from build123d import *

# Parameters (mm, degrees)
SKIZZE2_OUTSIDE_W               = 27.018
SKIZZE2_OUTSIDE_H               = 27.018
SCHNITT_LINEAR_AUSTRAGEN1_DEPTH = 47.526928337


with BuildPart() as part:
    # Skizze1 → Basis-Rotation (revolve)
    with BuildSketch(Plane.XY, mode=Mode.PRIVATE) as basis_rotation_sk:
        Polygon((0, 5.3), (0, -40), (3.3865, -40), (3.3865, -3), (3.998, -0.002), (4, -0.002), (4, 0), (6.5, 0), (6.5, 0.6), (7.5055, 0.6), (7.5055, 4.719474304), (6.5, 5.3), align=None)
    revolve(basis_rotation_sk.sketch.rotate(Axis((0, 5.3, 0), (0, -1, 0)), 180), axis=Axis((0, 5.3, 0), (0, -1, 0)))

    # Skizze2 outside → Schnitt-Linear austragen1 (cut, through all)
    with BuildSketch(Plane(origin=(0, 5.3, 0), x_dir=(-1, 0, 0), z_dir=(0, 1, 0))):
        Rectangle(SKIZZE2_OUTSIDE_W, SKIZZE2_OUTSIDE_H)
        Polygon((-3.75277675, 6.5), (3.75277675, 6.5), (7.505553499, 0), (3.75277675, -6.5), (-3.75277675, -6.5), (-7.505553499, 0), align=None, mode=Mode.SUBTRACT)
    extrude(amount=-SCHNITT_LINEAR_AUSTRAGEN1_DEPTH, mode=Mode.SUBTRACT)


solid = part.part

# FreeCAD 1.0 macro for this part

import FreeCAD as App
import Part
import Sketcher
from FreeCAD import Vector
Q = App.Units.Quantity


def add_polygon(sketch, points):
    """Adds a closed chain of lines whose ends are joined by coincident constraints."""
    first, n = sketch.GeometryCount, len(points)
    for a, b in zip(points, points[1:] + points[:1]):
        sketch.addGeometry(Part.LineSegment(App.Vector(*a, 0), App.Vector(*b, 0)), False)
    for i in range(n):
        sketch.addConstraint(Sketcher.Constraint("Coincident", first + i, 2, first + (i + 1) % n, 1))

doc = App.newDocument("Part")
params = doc.addObject("Spreadsheet::Sheet", "Params")
for row, (alias, value) in enumerate([
    ("sketch1_height", "37 mm"),
    ("sketch1_width", "2.5 mm"),
    ("sketch1_width2", "6.5 mm"),
    ("sketch1_height2", "45.3 mm"),
    ("sketch1_height3", "0.6 mm"),
    ("revolution_angle", "360 deg"),
], start=1):
    params.set(f"A{row}", alias)
    params.set(f"B{row}", "=" + value)
    params.setAlias(f"B{row}", alias)

body = doc.addObject("PartDesign::Body", "Body")

# Sketch on XY plane
sketch1 = body.newObject("Sketcher::SketchObject", "Sketch")
sketch1.AttachmentSupport = (doc.getObject("XY_Plane"), [""])
sketch1.MapMode = "FlatFace"
add_polygon(sketch1, [(0, 5.3), (0, -40), (3.3865, -40), (3.3865, -3), (3.998, -0.002), (4, -0.002), (4, 0), (6.5, 0), (6.5, 0.6), (7.5055, 0.6), (7.5055, 4.7195), (6.5, 5.3)])  # lines 0-11
sketch1.addConstraint([
    Sketcher.Constraint("Vertical", 0),
    Sketcher.Constraint("Horizontal", 1),
    Sketcher.Constraint("Vertical", 2),
    Sketcher.Constraint("Horizontal", 4),
    Sketcher.Constraint("Vertical", 5),
    Sketcher.Constraint("Horizontal", 6),
    Sketcher.Constraint("Vertical", 7),
    Sketcher.Constraint("Horizontal", 8),
    Sketcher.Constraint("Vertical", 9),
    Sketcher.Constraint("Horizontal", 11),
    Sketcher.Constraint("PointOnObject", 0, 2, -2),
    Sketcher.Constraint("PointOnObject", 5, 2, -1),
    Sketcher.Constraint("Vertical", 7, 2, 10, 2),
    Sketcher.Constraint("Equal", 4, 5),
    Sketcher.Constraint("DistanceY", 2, 1, 2, 2, 37.0),
    Sketcher.Constraint("Angle", 10, Q("150 deg")),
    Sketcher.Constraint("DistanceX", 6, 1, 6, 2, 2.5),
    Sketcher.Constraint("DistanceX", 11, 2, 11, 1, 6.5),
    Sketcher.Constraint("DistanceY", 0, 2, 0, 1, 45.3),
    Sketcher.Constraint("DistanceY", 7, 1, 7, 2, 0.6),
    Sketcher.Constraint("DistanceY", 0, 2, -1, 1, 40.0),
    Sketcher.Constraint("DistanceX", 4, 1, 4, 2, 0.002),
    Sketcher.Constraint("DistanceX", 1, 1, 1, 2, 3.3865),
    Sketcher.Constraint("DistanceX", 8, 1, 8, 2, 1.0055),
])
sketch1.setExpression("Constraints[26]", "Params.sketch1_height")
sketch1.setExpression("Constraints[28]", "Params.sketch1_width")
sketch1.setExpression("Constraints[29]", "Params.sketch1_width2")
sketch1.setExpression("Constraints[30]", "Params.sketch1_height2")
sketch1.setExpression("Constraints[31]", "Params.sketch1_height3")
revolution = body.newObject("PartDesign::Revolution", "Revolution")
revolution.Profile = sketch1
revolution.ReferenceAxis = (sketch1, ["V_Axis"])
revolution.setExpression("Angle", "Params.revolution_angle")

# Sketch on XZ plane
sketch2 = body.newObject("Sketcher::SketchObject", "Sketch001")
sketch2.AttachmentSupport = (doc.getObject("XZ_Plane"), [""])
sketch2.MapMode = "FlatFace"
sketch2.AttachmentOffset = App.Placement(Vector(0, 0, -5.3), App.Rotation())
add_polygon(sketch2, [(14, 14), (14, -14), (-14, -14), (-14, 14)])  # lines 0-3
add_polygon(sketch2, [(8, 0), (4, 6), (-4, 6), (-8, 0), (-4, -6), (4, -6)])  # lines 4-9
sketch2.addConstraint([
    Sketcher.Constraint("Vertical", 0),
    Sketcher.Constraint("Horizontal", 1),
    Sketcher.Constraint("Vertical", 2),
    Sketcher.Constraint("Horizontal", 3),
    Sketcher.Constraint("Horizontal", 5),
    Sketcher.Constraint("Horizontal", 8),
    Sketcher.Constraint("Symmetric", 0, 2, 2, 2, -1, 1),
    Sketcher.Constraint("Symmetric", 4, 2, 7, 2, -1, 1),
    Sketcher.Constraint("Symmetric", 6, 2, 9, 2, -1, 1),
    Sketcher.Constraint("PointOnObject", 6, 2, -1),
    Sketcher.Constraint("Parallel", 6, 9),
    Sketcher.Constraint("Vertical", 5, 2, 7, 2),
    Sketcher.Constraint("Equal", 3, 0),
    Sketcher.Constraint("Angle", 4, Q("120 deg")),
    Sketcher.Constraint("DistanceY", 7, 2, 5, 2, 13.0),
    Sketcher.Constraint("DistanceX", 1, 2, 1, 1, 27.018),
    Sketcher.Constraint("DistanceX", 5, 2, 5, 1, 7.505554),
])
pocket1 = body.newObject("PartDesign::Pocket", "Pocket")
pocket1.Profile = sketch2
pocket1.Type = "ThroughAll"
pocket1.Reversed = True

doc.recompute()
